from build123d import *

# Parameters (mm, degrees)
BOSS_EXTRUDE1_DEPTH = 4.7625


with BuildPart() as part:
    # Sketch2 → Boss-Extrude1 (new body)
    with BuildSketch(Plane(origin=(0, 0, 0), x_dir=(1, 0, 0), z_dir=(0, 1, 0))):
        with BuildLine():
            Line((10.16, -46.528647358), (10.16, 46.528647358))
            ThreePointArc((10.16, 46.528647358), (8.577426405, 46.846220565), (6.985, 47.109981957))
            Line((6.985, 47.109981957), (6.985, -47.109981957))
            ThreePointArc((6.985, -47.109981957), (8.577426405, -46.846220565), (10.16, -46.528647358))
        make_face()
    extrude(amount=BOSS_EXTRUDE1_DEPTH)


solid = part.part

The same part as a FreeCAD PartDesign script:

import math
import FreeCAD as App
import Part
import Sketcher

V = App.Vector
Q = App.Units.Quantity

doc = App.newDocument("Part")
params = doc.addObject("Spreadsheet::Sheet", "Params")
for row, (alias, value) in enumerate([
    ("sketch1_radius", "1.875 in"),
    ("pad1_length", "0.1875 in"),
], start=1):
    params.set(f"A{row}", alias)
    params.set(f"B{row}", "=" + value)
    params.setAlias(f"B{row}", alias)

body = doc.addObject("PartDesign::Body", "Body")

# Sketch on XZ plane
sketch1 = doc.addObject("Sketcher::SketchObject", "Sketch")
body.addObject(sketch1)
sketch1.AttachmentSupport = (doc.XZ_Plane, [""])
sketch1.MapMode = "FlatFace"
sketch1.addGeometry([
    Part.LineSegment(V(10.16, 46.528647, 0), V(10.16, -46.528647, 0)),
    Part.ArcOfCircle(Part.Circle(V(0, 0, 0), V(0, 0, 1), 47.625), math.radians(-81.566196), math.radians(-77.682234)),
    Part.LineSegment(V(6.985, -47.109982, 0), V(6.985, 47.109982, 0)),
    Part.ArcOfCircle(Part.Circle(V(0, 0, 0), V(0, 0, 1), 47.625), math.radians(77.682234), math.radians(81.566196)),
], False)
sketch1.addConstraint([
    Sketcher.Constraint("Coincident", 0, 2, 1, 2),
    Sketcher.Constraint("Coincident", 1, 1, 2, 1),
    Sketcher.Constraint("Coincident", 2, 2, 3, 2),
    Sketcher.Constraint("Coincident", 3, 1, 0, 1),
    Sketcher.Constraint("Vertical", 0),
    Sketcher.Constraint("Vertical", 2),
    Sketcher.Constraint("Coincident", 1, 3, -1, 1),
    Sketcher.Constraint("Coincident", 3, 3, -1, 1),
    Sketcher.Constraint("Equal", 1, 3),
    Sketcher.Constraint("Radius", 1, Q("1.875 in")),
    Sketcher.Constraint("DistanceX", -1, 1, 0, 2, Q("0.4 in")),
    Sketcher.Constraint("DistanceX", -1, 1, 1, 1, Q("0.275 in")),
])
sketch1.setExpression("Constraints[9]", "Params.sketch1_radius")
pad1 = doc.addObject("PartDesign::Pad", "Pad")
body.addObject(pad1)
pad1.Profile = sketch1
pad1.setExpression("Length", "Params.pad1_length")
pad1.Reversed = True

doc.recompute()
